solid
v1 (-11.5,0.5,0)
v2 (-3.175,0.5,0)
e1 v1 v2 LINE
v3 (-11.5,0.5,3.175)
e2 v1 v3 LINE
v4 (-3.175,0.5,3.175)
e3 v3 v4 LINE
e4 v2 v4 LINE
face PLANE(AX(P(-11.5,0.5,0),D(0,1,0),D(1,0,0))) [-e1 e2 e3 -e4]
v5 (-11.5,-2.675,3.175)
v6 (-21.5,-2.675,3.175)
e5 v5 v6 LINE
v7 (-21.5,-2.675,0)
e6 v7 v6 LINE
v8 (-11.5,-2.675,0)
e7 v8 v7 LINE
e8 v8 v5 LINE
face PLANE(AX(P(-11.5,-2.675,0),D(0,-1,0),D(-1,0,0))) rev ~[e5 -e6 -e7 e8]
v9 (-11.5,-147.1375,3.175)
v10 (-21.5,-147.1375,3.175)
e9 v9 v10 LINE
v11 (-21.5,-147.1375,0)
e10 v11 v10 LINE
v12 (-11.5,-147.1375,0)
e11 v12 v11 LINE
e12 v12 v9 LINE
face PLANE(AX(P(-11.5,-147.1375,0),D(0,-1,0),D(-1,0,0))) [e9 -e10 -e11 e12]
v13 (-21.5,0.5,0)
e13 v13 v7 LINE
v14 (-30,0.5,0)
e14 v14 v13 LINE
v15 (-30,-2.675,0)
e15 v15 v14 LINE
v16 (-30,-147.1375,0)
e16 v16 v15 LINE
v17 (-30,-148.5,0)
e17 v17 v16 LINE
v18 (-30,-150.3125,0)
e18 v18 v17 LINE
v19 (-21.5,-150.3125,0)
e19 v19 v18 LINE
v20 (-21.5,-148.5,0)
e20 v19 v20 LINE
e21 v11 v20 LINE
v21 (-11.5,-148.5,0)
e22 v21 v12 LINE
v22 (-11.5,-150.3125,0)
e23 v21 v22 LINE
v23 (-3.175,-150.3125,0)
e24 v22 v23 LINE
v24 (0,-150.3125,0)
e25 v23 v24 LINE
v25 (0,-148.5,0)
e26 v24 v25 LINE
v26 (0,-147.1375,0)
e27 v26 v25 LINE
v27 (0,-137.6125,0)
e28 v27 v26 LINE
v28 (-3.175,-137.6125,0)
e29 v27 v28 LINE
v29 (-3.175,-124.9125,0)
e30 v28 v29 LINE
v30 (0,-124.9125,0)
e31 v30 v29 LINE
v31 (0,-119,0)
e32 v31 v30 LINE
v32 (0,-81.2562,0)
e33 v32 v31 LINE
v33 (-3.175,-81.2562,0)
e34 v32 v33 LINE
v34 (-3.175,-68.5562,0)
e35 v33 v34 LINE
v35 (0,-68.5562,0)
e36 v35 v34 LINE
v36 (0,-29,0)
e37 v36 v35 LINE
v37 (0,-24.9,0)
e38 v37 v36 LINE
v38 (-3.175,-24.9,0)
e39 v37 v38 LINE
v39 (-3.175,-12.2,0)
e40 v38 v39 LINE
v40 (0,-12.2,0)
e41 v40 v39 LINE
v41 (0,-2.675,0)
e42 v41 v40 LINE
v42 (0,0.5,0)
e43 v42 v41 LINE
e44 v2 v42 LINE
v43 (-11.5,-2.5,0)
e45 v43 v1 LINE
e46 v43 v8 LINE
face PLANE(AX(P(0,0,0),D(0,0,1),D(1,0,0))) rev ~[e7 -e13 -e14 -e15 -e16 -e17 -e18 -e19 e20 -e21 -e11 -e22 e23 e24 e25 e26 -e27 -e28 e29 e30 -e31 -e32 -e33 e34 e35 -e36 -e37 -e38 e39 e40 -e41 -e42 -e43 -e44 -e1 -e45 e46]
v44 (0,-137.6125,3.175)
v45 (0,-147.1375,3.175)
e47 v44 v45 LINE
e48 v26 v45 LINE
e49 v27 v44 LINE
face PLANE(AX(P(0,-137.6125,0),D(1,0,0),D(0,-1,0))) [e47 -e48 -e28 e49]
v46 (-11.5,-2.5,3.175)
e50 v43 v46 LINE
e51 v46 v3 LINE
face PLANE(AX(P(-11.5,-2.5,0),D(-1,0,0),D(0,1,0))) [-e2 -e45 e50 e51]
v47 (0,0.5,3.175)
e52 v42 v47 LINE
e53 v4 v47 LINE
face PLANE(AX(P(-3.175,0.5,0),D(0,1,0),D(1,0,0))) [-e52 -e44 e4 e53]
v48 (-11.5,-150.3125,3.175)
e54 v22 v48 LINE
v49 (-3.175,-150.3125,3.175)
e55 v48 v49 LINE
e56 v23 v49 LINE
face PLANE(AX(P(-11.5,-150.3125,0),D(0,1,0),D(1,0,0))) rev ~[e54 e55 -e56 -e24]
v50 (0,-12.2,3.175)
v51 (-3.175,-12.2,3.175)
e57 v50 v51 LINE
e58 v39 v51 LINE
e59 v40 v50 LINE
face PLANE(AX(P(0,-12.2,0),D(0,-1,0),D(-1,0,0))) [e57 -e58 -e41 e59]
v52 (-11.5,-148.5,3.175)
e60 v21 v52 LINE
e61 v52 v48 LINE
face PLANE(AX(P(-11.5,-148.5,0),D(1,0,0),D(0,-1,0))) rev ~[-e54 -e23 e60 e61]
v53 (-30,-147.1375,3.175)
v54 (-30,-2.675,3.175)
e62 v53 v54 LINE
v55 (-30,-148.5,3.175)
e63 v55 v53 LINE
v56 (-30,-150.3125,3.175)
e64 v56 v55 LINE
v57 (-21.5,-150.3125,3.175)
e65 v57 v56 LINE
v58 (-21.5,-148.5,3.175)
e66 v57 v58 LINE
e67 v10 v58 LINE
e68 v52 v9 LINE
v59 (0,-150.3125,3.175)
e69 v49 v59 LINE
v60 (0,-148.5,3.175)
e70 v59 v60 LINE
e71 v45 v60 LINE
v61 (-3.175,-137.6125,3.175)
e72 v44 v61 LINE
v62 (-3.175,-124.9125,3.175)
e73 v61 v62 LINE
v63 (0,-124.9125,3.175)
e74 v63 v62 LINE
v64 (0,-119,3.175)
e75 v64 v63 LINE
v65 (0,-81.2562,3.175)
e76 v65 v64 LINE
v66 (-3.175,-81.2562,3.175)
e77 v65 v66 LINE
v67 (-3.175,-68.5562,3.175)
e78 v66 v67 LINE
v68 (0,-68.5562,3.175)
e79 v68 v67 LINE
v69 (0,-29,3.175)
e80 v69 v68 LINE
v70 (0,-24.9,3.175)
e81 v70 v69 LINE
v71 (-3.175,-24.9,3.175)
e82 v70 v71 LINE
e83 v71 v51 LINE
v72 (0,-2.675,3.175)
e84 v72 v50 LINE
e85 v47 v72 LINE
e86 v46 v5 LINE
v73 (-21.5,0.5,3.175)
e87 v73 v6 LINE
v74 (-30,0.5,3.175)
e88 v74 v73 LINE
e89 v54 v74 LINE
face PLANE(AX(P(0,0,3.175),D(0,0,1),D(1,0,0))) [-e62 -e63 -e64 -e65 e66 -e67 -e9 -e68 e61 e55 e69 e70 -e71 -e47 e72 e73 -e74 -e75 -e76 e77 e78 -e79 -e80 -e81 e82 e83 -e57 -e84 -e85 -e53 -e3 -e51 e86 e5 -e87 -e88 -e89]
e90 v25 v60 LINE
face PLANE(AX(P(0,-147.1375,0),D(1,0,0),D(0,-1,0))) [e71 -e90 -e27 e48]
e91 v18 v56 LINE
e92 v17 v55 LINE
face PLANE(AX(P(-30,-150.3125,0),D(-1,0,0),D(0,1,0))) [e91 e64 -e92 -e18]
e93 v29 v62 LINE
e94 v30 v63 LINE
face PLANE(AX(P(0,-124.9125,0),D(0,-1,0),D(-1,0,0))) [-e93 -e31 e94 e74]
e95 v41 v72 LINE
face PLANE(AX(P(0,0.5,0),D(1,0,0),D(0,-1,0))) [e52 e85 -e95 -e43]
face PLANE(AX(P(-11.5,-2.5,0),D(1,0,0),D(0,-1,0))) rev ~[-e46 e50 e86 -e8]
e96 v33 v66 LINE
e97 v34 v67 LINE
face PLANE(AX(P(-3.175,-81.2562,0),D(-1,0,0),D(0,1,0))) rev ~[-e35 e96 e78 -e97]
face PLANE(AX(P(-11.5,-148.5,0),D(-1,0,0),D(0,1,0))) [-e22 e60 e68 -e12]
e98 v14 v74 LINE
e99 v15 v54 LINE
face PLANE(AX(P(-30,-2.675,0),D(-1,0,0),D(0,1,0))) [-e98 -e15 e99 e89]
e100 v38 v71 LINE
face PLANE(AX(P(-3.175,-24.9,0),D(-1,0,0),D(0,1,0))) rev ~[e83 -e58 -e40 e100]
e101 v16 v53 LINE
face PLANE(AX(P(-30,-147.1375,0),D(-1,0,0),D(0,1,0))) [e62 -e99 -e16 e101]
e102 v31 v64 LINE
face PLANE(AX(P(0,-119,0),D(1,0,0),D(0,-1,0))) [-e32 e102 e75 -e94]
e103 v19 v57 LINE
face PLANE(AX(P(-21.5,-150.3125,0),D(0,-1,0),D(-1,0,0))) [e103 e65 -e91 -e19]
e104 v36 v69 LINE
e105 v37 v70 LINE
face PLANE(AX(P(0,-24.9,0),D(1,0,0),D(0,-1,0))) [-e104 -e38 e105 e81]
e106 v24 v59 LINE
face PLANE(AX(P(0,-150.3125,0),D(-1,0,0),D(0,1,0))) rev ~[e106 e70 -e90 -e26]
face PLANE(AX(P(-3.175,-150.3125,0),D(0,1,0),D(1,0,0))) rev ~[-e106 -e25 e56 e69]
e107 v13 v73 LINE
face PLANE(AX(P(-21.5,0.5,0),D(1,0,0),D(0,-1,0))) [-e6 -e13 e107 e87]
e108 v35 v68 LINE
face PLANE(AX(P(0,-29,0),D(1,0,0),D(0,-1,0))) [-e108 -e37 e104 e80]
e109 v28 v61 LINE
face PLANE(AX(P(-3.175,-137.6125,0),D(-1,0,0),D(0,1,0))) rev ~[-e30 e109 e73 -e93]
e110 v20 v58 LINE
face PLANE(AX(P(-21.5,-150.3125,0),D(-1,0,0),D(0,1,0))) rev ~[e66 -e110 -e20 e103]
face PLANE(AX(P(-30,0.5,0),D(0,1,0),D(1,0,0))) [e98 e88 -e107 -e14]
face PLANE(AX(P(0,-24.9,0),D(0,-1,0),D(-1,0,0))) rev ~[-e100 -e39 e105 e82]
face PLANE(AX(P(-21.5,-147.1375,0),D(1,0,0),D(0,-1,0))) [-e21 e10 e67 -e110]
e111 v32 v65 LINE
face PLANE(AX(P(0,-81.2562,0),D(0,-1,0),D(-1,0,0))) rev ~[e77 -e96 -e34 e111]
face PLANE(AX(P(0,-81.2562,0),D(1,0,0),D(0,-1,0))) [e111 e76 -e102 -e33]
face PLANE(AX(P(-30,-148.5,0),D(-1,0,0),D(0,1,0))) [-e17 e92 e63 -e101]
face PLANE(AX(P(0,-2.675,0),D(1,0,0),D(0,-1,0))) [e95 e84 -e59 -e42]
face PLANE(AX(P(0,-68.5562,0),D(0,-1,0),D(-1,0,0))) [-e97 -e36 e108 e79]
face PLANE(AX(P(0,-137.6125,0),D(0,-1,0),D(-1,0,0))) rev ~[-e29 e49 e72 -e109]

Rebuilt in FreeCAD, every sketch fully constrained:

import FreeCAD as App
import Part
import Sketcher

V = App.Vector
Q = App.Units.Quantity


def add_polygon(sketch, points):
    """Adds a closed chain of lines whose ends are joined by coincident constraints."""
    first, n = sketch.GeometryCount, len(points)
    for a, b in zip(points, points[1:] + points[:1]):
        sketch.addGeometry(Part.LineSegment(App.Vector(*a, 0), App.Vector(*b, 0)), False)
    for i in range(n):
        sketch.addConstraint(Sketcher.Constraint("Coincident", first + i, 2, first + (i + 1) % n, 1))

doc = App.newDocument("Part")
body = doc.addObject("PartDesign::Body", "Body")

# Sketch on XY plane
sketch1 = body.newObject("Sketcher::SketchObject", "Sketch")
sketch1.AttachmentSupport = (doc.getObject("XY_Plane"), [""])
sketch1.MapMode = "FlatFace"
add_polygon(sketch1, [(-21.5, -150.3), (-21.5, -147.1), (-11.5, -147.1), (-11.5, -150.3), (0, -150.3), (0, -137.6), (-3.2, -137.6), (-3.2, -124.9), (0, -124.9), (0, -81.3), (-3.2, -81.3), (-3.2, -68.6), (0, -68.6), (0, -24.9), (-3.2, -24.9), (-3.2, -12.2), (0, -12.2), (0, 0.5), (-11.5, 0.5), (-11.5, -2.7), (-21.5, -2.7), (-21.5, 0.5), (-30, 0.5), (-30, -150.3)])  # lines 0-23
sketch1.addConstraint([
    Sketcher.Constraint("Vertical", 0),
    Sketcher.Constraint("Horizontal", 1),
    Sketcher.Constraint("Vertical", 2),
    Sketcher.Constraint("Horizontal", 3),
    Sketcher.Constraint("Vertical", 4),
    Sketcher.Constraint("Horizontal", 5),
    Sketcher.Constraint("Vertical", 6),
    Sketcher.Constraint("Horizontal", 7),
    Sketcher.Constraint("Vertical", 8),
    Sketcher.Constraint("Horizontal", 9),
    Sketcher.Constraint("Vertical", 10),
    Sketcher.Constraint("Horizontal", 11),
    Sketcher.Constraint("Vertical", 12),
    Sketcher.Constraint("Horizontal", 13),
    Sketcher.Constraint("Vertical", 14),
    Sketcher.Constraint("Horizontal", 15),
    Sketcher.Constraint("Vertical", 16),
    Sketcher.Constraint("Horizontal", 17),
    Sketcher.Constraint("Vertical", 18),
    Sketcher.Constraint("Horizontal", 19),
    Sketcher.Constraint("Vertical", 20),
    Sketcher.Constraint("Horizontal", 21),
    Sketcher.Constraint("Vertical", 22),
    Sketcher.Constraint("Horizontal", 23),
    Sketcher.Constraint("PointOnObject", 3, 2, -2),
    Sketcher.Constraint("PointOnObject", 7, 2, -2),
    Sketcher.Constraint("PointOnObject", 11, 2, -2),
    Sketcher.Constraint("PointOnObject", 15, 2, -2),
    Sketcher.Constraint("Horizontal", 17, 2, 20, 2),
    Sketcher.Constraint("Horizontal", 3, 2, 22, 2),
    Sketcher.Constraint("Vertical", 6, 2, 9, 2),
    Sketcher.Constraint("Vertical", 10, 2, 13, 2),
    Sketcher.Constraint("Vertical", 2, 2, 17, 2),
    Sketcher.Constraint("Vertical", 0, 2, 19, 2),
    Sketcher.Constraint("Equal", 15, 0),
    Sketcher.Constraint("Equal", 4, 6),
    Sketcher.Constraint("Equal", 6, 10),
    Sketcher.Constraint("Equal", 8, 12),
    Sketcher.Constraint("Equal", 10, 14),
    Sketcher.Constraint("Equal", 14, 16),
    Sketcher.Constraint("Equal", 2, 18),
    Sketcher.Constraint("DistanceY", 4, 1, 4, 2, Q("0.5 in")),
    Sketcher.Constraint("DistanceX", 5, 2, 5, 1, Q("0.125 in")),
    Sketcher.Constraint("DistanceY", 8, 1, 8, 2, Q("1.718752 in")),
    Sketcher.Constraint("DistanceX", 1, 1, 1, 2, Q("0.3937 in")),
    Sketcher.Constraint("DistanceX", 3, 1, 3, 2, Q("11.5 mm")),
    Sketcher.Constraint("DistanceX", 21, 2, 21, 1, Q("8.5 mm")),
    Sketcher.Constraint("DistanceY", 0, 2, -1, 1, Q("147.1375 mm")),
])
pad1 = body.newObject("PartDesign::Pad", "Pad")
pad1.Profile = sketch1
pad1.Length = Q("0.125 in")

doc.recompute()
